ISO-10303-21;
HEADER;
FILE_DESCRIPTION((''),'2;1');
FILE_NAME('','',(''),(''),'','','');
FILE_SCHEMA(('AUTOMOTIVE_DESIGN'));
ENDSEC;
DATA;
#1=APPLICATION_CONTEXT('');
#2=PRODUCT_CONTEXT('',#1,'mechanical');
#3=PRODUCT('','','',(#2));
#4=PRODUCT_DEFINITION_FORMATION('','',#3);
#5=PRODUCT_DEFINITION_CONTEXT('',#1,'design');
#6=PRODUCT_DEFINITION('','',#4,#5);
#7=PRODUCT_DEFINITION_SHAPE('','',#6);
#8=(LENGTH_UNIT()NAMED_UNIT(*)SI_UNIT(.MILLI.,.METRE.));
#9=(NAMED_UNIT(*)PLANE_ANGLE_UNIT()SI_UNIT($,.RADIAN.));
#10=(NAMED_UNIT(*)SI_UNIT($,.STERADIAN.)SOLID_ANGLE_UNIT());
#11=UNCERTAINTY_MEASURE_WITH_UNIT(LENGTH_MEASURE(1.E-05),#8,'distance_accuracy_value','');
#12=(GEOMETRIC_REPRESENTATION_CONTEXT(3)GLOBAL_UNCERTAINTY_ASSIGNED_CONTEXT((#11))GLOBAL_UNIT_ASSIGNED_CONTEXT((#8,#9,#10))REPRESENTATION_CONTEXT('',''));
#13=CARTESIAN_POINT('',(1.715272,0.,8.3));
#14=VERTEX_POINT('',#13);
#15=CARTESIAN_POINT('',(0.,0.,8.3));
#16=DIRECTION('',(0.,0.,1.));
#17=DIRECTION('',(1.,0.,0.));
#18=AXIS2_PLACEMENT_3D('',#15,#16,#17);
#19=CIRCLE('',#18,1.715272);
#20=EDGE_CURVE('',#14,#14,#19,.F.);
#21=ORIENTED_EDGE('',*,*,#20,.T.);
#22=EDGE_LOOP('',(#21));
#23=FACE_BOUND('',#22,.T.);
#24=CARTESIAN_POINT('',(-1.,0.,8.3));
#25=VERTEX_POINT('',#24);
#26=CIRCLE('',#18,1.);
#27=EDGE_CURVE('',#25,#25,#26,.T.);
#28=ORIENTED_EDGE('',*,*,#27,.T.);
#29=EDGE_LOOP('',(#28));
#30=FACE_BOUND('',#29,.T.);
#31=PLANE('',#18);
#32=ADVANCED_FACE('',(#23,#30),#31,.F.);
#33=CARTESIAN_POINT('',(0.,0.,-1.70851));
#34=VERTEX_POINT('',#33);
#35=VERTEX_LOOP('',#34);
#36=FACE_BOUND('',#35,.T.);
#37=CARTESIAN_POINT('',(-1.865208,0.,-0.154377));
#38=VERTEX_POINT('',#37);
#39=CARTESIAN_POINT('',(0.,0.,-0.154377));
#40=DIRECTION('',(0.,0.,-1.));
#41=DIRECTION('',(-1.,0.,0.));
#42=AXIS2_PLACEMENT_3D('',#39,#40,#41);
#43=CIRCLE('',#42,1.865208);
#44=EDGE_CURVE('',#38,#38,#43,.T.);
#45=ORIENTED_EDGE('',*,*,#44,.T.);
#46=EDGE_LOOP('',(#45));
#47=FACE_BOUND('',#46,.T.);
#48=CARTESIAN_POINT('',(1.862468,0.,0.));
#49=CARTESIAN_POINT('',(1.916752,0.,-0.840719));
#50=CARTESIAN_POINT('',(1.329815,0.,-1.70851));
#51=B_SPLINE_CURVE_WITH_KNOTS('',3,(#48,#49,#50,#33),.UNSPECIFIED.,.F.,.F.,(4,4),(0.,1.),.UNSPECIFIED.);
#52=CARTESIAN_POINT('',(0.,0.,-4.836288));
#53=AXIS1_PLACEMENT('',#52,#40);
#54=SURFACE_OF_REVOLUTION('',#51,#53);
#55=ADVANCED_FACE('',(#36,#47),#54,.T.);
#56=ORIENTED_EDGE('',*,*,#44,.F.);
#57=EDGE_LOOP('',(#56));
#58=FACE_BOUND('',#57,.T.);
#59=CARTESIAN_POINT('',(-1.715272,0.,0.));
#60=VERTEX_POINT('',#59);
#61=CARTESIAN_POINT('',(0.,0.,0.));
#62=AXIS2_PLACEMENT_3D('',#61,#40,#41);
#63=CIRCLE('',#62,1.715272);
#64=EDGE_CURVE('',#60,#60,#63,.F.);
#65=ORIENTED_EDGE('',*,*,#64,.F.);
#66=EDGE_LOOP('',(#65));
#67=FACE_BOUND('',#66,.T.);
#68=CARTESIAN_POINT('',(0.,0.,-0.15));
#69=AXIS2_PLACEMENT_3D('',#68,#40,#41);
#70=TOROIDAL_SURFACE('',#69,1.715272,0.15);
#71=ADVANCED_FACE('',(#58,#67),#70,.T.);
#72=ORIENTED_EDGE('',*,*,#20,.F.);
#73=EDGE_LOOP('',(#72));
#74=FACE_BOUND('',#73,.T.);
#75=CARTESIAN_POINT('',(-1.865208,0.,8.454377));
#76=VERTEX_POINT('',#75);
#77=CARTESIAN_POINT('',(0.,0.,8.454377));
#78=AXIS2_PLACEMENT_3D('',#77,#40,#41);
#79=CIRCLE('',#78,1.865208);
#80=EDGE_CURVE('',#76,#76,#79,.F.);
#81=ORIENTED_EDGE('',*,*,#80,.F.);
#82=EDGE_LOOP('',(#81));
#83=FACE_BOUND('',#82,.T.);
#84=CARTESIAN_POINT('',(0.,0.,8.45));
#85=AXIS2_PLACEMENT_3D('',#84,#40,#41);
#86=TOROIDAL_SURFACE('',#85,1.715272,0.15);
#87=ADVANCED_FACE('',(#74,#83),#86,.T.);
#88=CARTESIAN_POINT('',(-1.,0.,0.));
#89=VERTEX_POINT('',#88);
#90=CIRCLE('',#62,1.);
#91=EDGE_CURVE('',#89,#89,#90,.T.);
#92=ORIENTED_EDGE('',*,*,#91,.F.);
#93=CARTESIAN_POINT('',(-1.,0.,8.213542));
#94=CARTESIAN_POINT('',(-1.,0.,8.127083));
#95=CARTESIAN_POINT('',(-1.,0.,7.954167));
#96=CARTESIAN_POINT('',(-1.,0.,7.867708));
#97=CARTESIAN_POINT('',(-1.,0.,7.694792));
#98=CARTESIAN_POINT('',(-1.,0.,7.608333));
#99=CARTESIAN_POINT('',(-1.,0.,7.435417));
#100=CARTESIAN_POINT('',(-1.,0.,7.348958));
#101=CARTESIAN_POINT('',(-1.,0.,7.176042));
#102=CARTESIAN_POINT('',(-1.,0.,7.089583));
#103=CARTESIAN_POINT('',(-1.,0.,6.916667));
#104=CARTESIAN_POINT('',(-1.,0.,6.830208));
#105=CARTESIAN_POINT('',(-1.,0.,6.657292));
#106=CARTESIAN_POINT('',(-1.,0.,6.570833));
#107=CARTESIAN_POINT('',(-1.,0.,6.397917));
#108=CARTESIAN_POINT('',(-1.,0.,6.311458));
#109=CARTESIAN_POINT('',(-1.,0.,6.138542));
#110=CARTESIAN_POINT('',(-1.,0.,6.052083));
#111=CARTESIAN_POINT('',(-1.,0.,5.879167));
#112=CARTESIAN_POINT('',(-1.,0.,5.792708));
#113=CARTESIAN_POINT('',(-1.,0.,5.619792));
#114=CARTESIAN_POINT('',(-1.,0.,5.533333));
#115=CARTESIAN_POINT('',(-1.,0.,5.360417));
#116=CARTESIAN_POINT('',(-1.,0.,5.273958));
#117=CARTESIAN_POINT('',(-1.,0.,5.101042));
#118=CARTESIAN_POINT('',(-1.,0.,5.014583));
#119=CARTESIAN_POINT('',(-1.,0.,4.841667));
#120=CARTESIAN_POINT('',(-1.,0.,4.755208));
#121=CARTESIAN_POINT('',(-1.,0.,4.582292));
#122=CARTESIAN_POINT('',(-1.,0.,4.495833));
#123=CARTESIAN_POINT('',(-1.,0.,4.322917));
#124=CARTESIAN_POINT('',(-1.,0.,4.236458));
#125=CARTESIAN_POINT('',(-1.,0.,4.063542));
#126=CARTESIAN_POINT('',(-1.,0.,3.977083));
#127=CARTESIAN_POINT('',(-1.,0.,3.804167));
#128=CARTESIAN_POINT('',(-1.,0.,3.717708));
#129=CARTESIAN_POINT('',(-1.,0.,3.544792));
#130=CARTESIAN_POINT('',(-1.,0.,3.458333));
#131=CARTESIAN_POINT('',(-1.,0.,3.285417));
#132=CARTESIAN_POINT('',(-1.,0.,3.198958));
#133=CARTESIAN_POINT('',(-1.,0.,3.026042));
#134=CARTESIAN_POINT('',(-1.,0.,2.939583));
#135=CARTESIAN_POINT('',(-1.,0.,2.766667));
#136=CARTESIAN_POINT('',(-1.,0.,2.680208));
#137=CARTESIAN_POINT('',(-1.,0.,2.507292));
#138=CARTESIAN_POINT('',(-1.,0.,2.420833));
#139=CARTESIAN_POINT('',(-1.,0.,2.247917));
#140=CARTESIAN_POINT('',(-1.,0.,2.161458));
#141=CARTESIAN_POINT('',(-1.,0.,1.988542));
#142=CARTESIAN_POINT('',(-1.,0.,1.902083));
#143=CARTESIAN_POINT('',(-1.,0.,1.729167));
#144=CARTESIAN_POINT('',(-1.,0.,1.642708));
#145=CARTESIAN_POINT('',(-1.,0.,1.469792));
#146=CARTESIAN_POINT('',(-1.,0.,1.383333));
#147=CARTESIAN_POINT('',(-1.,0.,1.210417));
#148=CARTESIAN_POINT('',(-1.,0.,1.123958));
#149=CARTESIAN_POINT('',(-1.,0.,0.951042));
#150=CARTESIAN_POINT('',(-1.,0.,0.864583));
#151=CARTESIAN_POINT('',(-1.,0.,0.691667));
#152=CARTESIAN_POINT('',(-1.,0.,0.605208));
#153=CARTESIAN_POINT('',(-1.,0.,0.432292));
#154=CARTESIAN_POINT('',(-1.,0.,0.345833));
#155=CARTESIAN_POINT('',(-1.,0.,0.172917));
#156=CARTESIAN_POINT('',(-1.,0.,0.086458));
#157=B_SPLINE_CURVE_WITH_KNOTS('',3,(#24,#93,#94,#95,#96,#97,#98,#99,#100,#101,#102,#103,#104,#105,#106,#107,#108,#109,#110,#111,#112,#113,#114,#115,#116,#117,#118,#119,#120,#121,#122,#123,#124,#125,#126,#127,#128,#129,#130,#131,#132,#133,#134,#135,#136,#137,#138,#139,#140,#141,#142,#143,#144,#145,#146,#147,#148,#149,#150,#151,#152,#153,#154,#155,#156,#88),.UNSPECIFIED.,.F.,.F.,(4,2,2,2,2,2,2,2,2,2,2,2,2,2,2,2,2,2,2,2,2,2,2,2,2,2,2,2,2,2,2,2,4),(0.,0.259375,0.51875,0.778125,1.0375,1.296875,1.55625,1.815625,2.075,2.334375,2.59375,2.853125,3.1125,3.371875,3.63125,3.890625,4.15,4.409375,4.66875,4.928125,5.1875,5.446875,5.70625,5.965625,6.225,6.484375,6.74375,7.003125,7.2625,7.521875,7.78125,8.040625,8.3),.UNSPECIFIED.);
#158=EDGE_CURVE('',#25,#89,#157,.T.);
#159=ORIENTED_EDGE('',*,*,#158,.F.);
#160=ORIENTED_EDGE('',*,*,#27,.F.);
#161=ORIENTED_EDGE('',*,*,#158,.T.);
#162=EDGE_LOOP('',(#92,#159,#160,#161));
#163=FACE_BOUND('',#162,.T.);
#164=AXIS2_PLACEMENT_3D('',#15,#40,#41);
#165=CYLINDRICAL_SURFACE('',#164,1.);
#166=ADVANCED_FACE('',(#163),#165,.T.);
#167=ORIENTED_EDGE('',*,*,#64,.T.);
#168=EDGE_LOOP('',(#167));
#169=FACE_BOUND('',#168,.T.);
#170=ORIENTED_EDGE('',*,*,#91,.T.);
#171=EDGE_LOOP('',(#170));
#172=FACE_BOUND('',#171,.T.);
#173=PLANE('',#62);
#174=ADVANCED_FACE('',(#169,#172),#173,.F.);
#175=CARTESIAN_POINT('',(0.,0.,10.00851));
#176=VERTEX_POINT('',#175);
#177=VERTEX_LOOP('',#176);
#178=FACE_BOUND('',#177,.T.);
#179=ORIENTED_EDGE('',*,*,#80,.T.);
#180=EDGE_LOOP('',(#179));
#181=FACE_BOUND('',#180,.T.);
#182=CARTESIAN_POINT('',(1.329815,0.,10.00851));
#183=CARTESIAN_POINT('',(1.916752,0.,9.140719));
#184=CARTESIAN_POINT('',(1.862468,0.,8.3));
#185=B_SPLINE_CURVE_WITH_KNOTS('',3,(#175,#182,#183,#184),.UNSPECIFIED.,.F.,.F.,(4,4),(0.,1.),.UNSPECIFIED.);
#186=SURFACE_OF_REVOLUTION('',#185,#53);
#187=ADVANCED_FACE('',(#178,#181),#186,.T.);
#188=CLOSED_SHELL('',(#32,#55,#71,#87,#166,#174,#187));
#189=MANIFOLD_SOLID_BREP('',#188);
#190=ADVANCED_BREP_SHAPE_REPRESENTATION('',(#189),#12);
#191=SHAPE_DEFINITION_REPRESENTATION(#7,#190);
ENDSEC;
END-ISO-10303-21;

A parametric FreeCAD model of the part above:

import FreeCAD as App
import Part
import Sketcher
from FreeCAD import Vector
Q = App.Units.Quantity


def edges_at(feature, points):
    """Names of the edges that pass closest to the given points."""
    edges = feature.Shape.Edges
    near = lambda p: min(range(len(edges)), key=lambda i: edges[i].distToShape(Part.Vertex(*p))[0])
    return sorted({f"Edge{near(p) + 1}" for p in points})

doc = App.newDocument("Part")
body = doc.addObject("PartDesign::Body", "Body")

# Sketch on XY plane
sketch1 = doc.addObject("Sketcher::SketchObject", "Sketch")
body.addObject(sketch1)
sketch1.AttachmentSupport = (doc.XY_Plane, [""])
sketch1.MapMode = "FlatFace"
sketch1.addGeometry(Part.Circle(Vector(0, 0, 0), Vector(0, 0, 1), 1), False)
sketch1.addConstraint([
    Sketcher.Constraint("Coincident", 0, 3, -1, 1),
    Sketcher.Constraint("Diameter", 0, Q("2 mm")),
])
pad1 = doc.addObject("PartDesign::Pad", "Pad")
body.addObject(pad1)
pad1.Profile = sketch1
pad1.Length = 8.3

# Sketch on XZ plane
sketch2 = doc.addObject("Sketcher::SketchObject", "Sketch001")
body.addObject(sketch2)
sketch2.AttachmentSupport = (doc.XZ_Plane, [""])
sketch2.MapMode = "FlatFace"
sketch2.addGeometry([
    Part.LineSegment(Vector(0, 0, 0), Vector(1.862468, 0, 0)),  # 0
    Part.BSplineCurve([Vector(1.862468, 0, 0), Vector(1.916752, -0.840719, 0), Vector(1.329815, -1.70851, 0), Vector(0, -1.70851, 0)], [4, 4], [0, 1], False, 3, [1, 1, 1, 1], False),  # 1
    Part.LineSegment(Vector(0, -1.70851, 0), Vector(0, 0, 0)),  # 2
    Part.LineSegment(Vector(1.862468, 8.3, 0), Vector(0, 8.3, 0)),  # 3
    Part.LineSegment(Vector(0, 8.3, 0), Vector(0, 10.00851, 0)),  # 4
    Part.BSplineCurve([Vector(1.862468, 8.3, 0), Vector(1.916752, 9.140719, 0), Vector(1.329815, 10.00851, 0), Vector(0, 10.00851, 0)], [4, 4], [0, 1], False, 3, [1, 1, 1, 1], False),  # 5
], False)
sketch2.addConstraint([
    Sketcher.Constraint("Block", 1),
    Sketcher.Constraint("Block", 5),
    Sketcher.Constraint("Coincident", 0, 2, 1, 1),
    Sketcher.Constraint("Coincident", 1, 2, 2, 1),
    Sketcher.Constraint("Coincident", 2, 2, 0, 1),
    Sketcher.Constraint("Coincident", 3, 2, 4, 1),
    Sketcher.Constraint("Coincident", 4, 2, 5, 2),
    Sketcher.Constraint("Coincident", 5, 1, 3, 1),
    Sketcher.Constraint("Horizontal", 0),
    Sketcher.Constraint("Vertical", 2),
    Sketcher.Constraint("Horizontal", 3),
    Sketcher.Constraint("Vertical", 4),
])
revolution = doc.addObject("PartDesign::Revolution", "Revolution")
body.addObject(revolution)
revolution.Profile = sketch2
revolution.ReferenceAxis = (sketch2, ["V_Axis"])
revolution.Angle = 360
doc.recompute()

fillet = doc.addObject("PartDesign::Fillet", "Fillet")
body.addObject(fillet)
fillet.Base = (revolution, edges_at(revolution, [(-1.862, 0, 8.3)]))
fillet.Radius = 0.15
doc.recompute()

fillet2 = doc.addObject("PartDesign::Fillet", "Fillet001")
body.addObject(fillet2)
fillet2.Base = (fillet, edges_at(fillet, [(-1.862, 0, 0)]))
fillet2.Radius = 0.15

doc.recompute()
